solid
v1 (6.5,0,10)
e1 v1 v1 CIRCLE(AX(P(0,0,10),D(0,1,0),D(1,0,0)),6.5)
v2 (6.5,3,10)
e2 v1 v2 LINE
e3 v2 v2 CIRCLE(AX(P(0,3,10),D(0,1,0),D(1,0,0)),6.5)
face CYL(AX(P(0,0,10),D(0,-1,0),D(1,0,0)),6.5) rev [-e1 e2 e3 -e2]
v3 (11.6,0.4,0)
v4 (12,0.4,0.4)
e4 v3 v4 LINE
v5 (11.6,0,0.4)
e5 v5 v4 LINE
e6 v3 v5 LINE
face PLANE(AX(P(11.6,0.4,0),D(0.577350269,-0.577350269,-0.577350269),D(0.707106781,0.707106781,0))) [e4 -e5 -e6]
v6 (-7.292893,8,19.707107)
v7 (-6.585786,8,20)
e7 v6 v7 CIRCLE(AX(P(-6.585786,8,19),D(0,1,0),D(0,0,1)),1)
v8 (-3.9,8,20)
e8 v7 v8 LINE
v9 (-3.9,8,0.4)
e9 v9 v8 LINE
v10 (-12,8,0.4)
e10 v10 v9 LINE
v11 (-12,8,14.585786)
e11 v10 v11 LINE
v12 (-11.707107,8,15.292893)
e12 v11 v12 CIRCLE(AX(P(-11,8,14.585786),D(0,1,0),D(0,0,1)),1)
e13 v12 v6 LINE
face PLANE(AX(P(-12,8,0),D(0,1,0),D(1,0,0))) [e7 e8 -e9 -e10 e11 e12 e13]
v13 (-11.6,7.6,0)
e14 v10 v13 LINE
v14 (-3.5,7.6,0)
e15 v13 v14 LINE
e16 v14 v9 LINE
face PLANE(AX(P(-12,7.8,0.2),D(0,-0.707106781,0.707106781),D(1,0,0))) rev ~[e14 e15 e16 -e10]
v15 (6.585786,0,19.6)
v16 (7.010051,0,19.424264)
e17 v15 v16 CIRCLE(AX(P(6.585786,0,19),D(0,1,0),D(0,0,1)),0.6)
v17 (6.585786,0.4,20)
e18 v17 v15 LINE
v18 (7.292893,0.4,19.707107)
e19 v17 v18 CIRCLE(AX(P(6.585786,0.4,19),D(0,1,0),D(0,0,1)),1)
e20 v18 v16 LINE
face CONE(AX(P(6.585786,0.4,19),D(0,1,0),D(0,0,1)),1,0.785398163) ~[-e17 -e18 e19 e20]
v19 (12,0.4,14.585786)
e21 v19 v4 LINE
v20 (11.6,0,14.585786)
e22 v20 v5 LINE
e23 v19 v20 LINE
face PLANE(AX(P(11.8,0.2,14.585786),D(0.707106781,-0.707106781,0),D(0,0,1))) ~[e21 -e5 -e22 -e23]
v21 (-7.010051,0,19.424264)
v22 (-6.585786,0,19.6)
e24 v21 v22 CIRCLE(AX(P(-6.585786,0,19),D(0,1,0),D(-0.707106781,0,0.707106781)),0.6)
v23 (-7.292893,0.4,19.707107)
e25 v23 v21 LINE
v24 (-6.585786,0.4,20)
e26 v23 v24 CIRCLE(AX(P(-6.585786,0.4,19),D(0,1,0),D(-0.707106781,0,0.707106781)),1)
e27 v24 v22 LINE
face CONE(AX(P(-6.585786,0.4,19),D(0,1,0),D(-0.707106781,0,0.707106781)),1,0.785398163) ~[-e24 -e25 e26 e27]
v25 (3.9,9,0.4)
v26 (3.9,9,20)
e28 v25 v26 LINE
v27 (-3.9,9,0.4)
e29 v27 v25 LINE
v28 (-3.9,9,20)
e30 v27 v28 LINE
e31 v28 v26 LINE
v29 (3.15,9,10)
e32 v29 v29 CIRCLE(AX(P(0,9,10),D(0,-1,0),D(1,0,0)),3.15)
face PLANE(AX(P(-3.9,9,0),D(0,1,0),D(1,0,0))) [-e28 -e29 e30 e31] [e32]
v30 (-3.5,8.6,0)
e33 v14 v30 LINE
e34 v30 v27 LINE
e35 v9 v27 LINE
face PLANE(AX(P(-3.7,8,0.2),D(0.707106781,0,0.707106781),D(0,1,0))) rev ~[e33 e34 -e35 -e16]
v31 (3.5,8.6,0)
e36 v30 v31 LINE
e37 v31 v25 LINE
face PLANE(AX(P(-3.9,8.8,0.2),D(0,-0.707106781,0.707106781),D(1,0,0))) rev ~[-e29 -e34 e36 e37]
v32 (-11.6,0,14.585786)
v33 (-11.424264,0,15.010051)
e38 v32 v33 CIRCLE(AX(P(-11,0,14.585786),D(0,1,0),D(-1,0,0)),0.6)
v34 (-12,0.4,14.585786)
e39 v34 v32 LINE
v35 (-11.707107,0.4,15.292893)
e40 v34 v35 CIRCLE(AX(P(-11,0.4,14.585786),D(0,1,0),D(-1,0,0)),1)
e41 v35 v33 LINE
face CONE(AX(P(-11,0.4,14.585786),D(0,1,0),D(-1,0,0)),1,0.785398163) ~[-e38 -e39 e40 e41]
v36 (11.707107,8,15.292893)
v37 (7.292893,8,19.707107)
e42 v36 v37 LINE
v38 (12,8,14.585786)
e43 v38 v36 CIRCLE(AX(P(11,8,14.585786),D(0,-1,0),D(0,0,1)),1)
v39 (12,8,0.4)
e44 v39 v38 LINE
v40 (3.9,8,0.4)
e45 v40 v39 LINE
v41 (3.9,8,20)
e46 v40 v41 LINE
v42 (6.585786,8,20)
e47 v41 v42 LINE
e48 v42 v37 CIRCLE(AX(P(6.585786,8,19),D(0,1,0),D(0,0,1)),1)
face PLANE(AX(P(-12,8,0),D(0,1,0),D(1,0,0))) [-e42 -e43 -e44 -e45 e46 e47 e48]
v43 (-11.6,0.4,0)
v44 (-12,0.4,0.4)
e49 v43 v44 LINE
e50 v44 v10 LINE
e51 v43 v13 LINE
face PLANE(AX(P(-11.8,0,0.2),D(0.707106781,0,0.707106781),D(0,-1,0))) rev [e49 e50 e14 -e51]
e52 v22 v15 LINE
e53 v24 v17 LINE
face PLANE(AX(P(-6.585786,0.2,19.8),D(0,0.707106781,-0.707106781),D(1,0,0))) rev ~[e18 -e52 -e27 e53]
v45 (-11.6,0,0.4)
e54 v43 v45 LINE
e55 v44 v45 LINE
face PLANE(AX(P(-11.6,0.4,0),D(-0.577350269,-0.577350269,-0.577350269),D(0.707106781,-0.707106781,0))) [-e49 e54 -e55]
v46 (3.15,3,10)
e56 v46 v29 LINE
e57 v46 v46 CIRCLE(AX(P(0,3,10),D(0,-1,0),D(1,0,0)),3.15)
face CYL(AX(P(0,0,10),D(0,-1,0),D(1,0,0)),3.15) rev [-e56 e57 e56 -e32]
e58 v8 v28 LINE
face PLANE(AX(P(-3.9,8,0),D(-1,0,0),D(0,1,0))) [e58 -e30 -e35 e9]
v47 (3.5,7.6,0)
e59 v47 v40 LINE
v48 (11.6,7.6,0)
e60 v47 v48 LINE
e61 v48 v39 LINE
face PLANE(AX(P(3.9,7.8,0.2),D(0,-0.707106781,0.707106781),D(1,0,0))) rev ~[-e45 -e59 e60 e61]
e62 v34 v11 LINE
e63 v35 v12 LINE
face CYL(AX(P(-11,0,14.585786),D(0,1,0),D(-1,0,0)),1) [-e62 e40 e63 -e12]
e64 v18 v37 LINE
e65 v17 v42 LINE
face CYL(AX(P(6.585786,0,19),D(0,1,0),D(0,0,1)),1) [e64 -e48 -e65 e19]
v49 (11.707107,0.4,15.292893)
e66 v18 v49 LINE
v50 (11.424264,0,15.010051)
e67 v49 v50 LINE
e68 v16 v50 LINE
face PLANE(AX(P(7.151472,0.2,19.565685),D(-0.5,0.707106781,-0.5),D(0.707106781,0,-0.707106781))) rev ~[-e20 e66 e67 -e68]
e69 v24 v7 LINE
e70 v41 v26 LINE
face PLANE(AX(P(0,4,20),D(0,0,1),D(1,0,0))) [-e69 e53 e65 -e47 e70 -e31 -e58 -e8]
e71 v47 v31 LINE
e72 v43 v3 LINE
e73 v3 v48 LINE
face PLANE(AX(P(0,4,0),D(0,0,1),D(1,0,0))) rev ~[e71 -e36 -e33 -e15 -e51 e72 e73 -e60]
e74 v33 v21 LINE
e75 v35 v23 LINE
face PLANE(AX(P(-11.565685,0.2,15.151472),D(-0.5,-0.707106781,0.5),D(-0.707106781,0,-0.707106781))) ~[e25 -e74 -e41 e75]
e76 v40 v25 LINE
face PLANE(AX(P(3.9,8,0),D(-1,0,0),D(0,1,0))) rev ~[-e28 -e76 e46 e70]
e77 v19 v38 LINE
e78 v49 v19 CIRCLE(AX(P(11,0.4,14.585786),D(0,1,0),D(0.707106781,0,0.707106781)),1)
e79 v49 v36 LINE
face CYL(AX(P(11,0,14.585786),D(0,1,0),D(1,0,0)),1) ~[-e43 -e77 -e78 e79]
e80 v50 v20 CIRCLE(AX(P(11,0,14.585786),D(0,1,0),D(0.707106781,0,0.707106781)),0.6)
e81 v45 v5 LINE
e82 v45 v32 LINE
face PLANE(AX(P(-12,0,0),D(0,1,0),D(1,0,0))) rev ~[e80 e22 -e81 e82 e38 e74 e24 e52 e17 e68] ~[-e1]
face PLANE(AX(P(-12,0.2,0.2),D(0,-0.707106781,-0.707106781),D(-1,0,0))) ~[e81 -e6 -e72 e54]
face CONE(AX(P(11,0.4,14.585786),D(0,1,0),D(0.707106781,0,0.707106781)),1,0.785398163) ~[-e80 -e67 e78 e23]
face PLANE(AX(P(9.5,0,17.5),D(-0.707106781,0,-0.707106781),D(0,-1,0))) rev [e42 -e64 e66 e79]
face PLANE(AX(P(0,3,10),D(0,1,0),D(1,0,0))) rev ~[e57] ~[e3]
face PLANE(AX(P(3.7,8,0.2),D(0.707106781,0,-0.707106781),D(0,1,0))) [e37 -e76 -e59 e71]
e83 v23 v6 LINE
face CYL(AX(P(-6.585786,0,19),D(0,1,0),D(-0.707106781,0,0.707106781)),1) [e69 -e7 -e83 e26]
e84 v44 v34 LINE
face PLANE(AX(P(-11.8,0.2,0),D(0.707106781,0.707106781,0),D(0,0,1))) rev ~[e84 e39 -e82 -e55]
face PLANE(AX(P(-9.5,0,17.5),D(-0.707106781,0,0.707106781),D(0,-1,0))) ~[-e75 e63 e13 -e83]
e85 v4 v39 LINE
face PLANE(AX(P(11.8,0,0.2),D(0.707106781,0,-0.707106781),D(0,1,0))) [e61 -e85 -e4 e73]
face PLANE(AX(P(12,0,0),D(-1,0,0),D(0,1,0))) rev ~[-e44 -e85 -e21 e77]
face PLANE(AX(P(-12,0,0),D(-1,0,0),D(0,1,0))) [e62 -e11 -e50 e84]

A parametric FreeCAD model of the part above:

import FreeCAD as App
import Part
import Sketcher
from FreeCAD import Vector
Q = App.Units.Quantity


def edges_at(feature, points):
    """Names of the edges that pass closest to the given points."""
    edges = feature.Shape.Edges
    near = lambda p: min(range(len(edges)), key=lambda i: edges[i].distToShape(Part.Vertex(*p))[0])
    return sorted({f"Edge{near(p) + 1}" for p in points})


def add_polygon(sketch, points):
    """Adds a closed chain of lines whose ends are joined by coincident constraints."""
    first, n = sketch.GeometryCount, len(points)
    for a, b in zip(points, points[1:] + points[:1]):
        sketch.addGeometry(Part.LineSegment(App.Vector(*a, 0), App.Vector(*b, 0)), False)
    for i in range(n):
        sketch.addConstraint(Sketcher.Constraint("Coincident", first + i, 2, first + (i + 1) % n, 1))

doc = App.newDocument("Part")
body = doc.addObject("PartDesign::Body", "Body")

# Sketch on XZ plane
sketch1 = body.newObject("Sketcher::SketchObject", "Sketch")
sketch1.AttachmentSupport = (doc.getObject("XZ_Plane"), [""])
sketch1.MapMode = "FlatFace"
sketch1.addGeometry(Part.Circle(Vector(0, 10, 0), Vector(0, 0, 1), 3.1), False)
sketch1.addConstraint([
    Sketcher.Constraint("PointOnObject", 0, 3, -2),
    Sketcher.Constraint("Diameter", 0, Q("6.3 mm")),
    Sketcher.Constraint("DistanceY", -1, 1, 0, 3, Q("10 mm")),
])
pad1 = body.newObject("PartDesign::Pad", "Pad")
pad1.Profile = sketch1
pad1.Length = 10
pad1.Reversed = True
body2 = doc.addObject("PartDesign::Body", "Body001")

# Sketch on XZ plane
sketch2 = body2.newObject("Sketcher::SketchObject", "Sketch001")
sketch2.AttachmentSupport = (doc.getObject("XZ_Plane001"), [""])
sketch2.MapMode = "FlatFace"
sketch2.addGeometry(Part.Circle(Vector(0, 10, 0), Vector(0, 0, 1), 6), False)
sketch2.addConstraint([
    Sketcher.Constraint("PointOnObject", 0, 3, -2),
    Sketcher.Constraint("Diameter", 0, Q("13 mm")),
    Sketcher.Constraint("DistanceY", -1, 1, 0, 3, Q("10 mm")),
])
pad2 = body2.newObject("PartDesign::Pad", "Pad001")
pad2.Profile = sketch2
pad2.Length = 3
pad2.Reversed = True
doc.recompute()

boolean = body2.newObject("PartDesign::Boolean", "Boolean")
boolean.Type = "Fuse"
boolean.addObjects([body])
body3 = doc.addObject("PartDesign::Body", "Body002")

# Sketch on XY plane
sketch3 = body3.newObject("Sketcher::SketchObject", "Sketch002")
sketch3.AttachmentSupport = (doc.getObject("XY_Plane002"), [""])
sketch3.MapMode = "FlatFace"
add_polygon(sketch3, [(-12, 8), (-12, 0), (12, 0), (12, 8)])  # lines 0-3
sketch3.addConstraint([
    Sketcher.Constraint("Vertical", 0),
    Sketcher.Constraint("Horizontal", 1),
    Sketcher.Constraint("Vertical", 2),
    Sketcher.Constraint("Horizontal", 3),
    Sketcher.Constraint("Symmetric", 0, 2, 1, 2, -1, 1),
    Sketcher.Constraint("DistanceX", 1, 1, 1, 2, Q("24 mm")),
    Sketcher.Constraint("DistanceY", 0, 2, 0, 1, Q("8 mm")),
])
pad3 = body3.newObject("PartDesign::Pad", "Pad002")
pad3.Profile = sketch3
pad3.Length = 20
doc.recompute()

chamfer = body3.newObject("PartDesign::Chamfer", "Chamfer")
chamfer.Base = (pad3, edges_at(pad3, [(-12, 4, 20), (12, 4, 20)]))
chamfer.Size = 5
body4 = doc.addObject("PartDesign::Body", "Body003")

# Sketch on XY plane
sketch4 = body4.newObject("Sketcher::SketchObject", "Sketch003")
sketch4.AttachmentSupport = (doc.getObject("XY_Plane003"), [""])
sketch4.MapMode = "FlatFace"
add_polygon(sketch4, [(-3.9, 9), (-3.9, 8), (3.9, 8), (3.9, 9)])  # lines 0-3
sketch4.addConstraint([
    Sketcher.Constraint("Vertical", 0),
    Sketcher.Constraint("Horizontal", 1),
    Sketcher.Constraint("Vertical", 2),
    Sketcher.Constraint("Horizontal", 3),
    Sketcher.Constraint("DistanceY", 0, 2, 0, 1, Q("1 mm")),
    Sketcher.Constraint("DistanceX", 1, 1, 1, 2, Q("7.8 mm")),
    Sketcher.Constraint("DistanceY", -1, 1, 0, 2, Q("8 mm")),
    Sketcher.Constraint("DistanceX", 0, 2, -1, 1, Q("3.9 mm")),
])
pad4 = body4.newObject("PartDesign::Pad", "Pad003")
pad4.Profile = sketch4
pad4.Length = 20
doc.recompute()

boolean2 = body4.newObject("PartDesign::Boolean", "Boolean001")
boolean2.Type = "Fuse"
boolean2.addObjects([body3])
doc.recompute()

boolean3 = body4.newObject("PartDesign::Boolean", "Boolean002")
boolean3.Type = "Cut"
boolean3.addObjects([body2])
doc.recompute()

fillet = body4.newObject("PartDesign::Fillet", "Fillet")
fillet.Base = (boolean3, edges_at(boolean3, [
    (-12, 4, 15),
    (-7, 4, 20),
    (12, 4, 15),
    (7, 4, 20),
]))
fillet.Radius = 1
doc.recompute()

chamfer2 = body4.newObject("PartDesign::Chamfer", "Chamfer001")
chamfer2.Base = (fillet, edges_at(fillet, [
    (-12, 0, 7.293),
    (-12, 4, 0),
    (12, 0, 7.293),
    (0, 0, 0),
    (-11.924, 0, 14.968),
    (-9.5, 0, 17.5),
    (-6.968, 0, 19.924),
    (0, 0, 20),
    (6.968, 0, 19.924),
    (9.5, 0, 17.5),
    (11.924, 0, 14.968),
    (-7.95, 8, 0),
    (12, 4, 0),
    (7.95, 8, 0),
    (-3.9, 8.5, 0),
    (0, 9, 0),
    (3.9, 8.5, 0),
]))
chamfer2.Size = 0.4

doc.recompute()
